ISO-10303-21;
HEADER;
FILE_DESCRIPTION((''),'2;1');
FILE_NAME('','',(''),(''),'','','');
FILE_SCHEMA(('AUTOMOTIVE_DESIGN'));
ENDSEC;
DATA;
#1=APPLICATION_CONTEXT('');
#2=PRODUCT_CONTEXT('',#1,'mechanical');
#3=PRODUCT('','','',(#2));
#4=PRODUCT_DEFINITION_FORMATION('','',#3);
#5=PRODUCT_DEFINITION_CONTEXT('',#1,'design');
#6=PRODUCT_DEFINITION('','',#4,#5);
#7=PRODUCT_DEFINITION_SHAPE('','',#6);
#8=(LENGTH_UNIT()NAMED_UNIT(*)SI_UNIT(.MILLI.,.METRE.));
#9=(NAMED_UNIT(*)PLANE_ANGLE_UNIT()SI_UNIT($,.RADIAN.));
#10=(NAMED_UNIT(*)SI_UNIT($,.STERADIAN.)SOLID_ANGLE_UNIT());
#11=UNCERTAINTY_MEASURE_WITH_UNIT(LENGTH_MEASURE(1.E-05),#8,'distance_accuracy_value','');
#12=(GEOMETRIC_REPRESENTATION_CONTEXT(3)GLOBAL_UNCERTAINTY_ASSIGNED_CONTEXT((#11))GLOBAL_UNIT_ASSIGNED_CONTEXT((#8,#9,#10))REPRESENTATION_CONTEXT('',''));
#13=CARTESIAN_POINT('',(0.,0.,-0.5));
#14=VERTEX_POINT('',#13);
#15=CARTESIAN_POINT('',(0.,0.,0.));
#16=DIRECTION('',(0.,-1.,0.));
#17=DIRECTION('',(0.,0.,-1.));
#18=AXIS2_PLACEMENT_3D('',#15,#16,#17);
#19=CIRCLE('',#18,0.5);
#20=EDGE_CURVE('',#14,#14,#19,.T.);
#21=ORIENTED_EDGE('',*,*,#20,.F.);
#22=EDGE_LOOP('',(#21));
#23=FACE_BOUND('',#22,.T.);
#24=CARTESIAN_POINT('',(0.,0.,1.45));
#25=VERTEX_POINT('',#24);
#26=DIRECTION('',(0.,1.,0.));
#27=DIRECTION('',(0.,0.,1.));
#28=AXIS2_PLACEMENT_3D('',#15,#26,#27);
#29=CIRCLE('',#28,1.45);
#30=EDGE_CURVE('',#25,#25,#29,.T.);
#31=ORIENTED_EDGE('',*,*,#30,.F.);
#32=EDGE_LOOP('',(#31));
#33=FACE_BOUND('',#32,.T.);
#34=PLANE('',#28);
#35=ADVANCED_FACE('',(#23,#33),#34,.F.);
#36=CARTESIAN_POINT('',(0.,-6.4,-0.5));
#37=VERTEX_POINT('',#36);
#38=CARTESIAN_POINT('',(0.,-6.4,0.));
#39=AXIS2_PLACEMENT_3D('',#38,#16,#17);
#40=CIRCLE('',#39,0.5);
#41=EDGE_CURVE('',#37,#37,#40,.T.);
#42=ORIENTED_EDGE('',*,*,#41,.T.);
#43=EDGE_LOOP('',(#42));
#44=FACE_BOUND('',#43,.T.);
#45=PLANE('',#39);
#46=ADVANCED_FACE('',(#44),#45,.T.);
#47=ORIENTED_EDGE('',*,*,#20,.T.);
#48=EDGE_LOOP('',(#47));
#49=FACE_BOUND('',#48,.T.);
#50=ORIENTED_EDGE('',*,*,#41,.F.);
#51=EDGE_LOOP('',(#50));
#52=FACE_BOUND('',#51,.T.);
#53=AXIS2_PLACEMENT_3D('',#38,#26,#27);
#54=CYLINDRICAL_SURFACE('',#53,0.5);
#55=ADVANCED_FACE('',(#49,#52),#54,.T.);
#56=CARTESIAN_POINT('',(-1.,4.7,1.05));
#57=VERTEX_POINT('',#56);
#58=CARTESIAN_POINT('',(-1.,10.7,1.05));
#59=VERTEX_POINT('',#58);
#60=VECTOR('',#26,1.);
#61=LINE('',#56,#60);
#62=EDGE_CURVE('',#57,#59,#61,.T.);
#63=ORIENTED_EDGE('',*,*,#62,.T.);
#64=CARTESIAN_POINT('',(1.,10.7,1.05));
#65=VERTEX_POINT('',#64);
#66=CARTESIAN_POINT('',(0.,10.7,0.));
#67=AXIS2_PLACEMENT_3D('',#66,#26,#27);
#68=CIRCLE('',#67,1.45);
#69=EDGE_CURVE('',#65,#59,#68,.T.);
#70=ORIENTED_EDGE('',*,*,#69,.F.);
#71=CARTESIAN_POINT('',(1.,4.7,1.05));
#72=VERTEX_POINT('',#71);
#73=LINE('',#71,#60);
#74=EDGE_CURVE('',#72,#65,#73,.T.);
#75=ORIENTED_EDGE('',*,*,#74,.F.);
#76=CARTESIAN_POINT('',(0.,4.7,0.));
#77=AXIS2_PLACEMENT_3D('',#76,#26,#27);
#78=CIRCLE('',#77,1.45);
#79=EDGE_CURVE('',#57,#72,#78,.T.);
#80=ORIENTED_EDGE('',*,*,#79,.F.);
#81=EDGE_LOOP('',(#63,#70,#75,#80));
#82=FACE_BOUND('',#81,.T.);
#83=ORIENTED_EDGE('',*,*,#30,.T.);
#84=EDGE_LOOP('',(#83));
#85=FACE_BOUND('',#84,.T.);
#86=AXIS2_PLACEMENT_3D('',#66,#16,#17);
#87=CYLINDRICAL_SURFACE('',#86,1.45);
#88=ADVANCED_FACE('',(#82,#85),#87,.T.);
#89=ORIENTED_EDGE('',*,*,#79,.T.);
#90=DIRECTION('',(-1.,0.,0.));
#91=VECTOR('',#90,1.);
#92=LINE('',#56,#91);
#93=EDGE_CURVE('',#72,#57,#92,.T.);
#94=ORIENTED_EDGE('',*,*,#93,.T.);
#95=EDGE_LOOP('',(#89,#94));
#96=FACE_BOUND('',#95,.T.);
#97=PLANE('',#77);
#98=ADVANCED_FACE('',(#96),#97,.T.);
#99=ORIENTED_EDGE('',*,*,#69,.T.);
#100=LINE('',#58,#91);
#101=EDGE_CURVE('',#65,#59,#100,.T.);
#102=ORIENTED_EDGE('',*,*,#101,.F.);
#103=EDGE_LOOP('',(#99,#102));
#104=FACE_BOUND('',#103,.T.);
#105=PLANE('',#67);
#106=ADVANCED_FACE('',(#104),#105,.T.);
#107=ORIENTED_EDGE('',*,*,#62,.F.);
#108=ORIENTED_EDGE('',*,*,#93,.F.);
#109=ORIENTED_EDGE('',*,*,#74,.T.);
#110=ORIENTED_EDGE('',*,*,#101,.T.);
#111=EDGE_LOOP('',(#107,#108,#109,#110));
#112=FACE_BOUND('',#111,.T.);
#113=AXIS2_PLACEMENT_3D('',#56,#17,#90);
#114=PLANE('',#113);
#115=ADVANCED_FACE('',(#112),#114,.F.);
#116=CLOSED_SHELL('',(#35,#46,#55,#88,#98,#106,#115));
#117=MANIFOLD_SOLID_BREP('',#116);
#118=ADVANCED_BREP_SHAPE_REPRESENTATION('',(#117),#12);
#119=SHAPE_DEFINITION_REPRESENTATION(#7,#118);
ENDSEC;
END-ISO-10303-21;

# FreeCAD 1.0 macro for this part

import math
import FreeCAD as App
import Part
import Sketcher

V = App.Vector
Q = App.Units.Quantity

doc = App.newDocument("Part")
body = doc.addObject("PartDesign::Body", "Body")

sketch1 = body.newObject("Sketcher::SketchObject", "Sketch")
sketch1.AttachmentSupport = (doc.getObject("XZ_Plane"), [""])
sketch1.MapMode = "FlatFace"
sketch1.addGeometry(Part.Circle(V(0, 0, 0), V(0, 0, 1), 1.4), False)
sketch1.addConstraint(Sketcher.Constraint("Coincident", 0, 3, -1, 1))
sketch1.addConstraint(Sketcher.Constraint("Diameter", 0, Q("2.9 mm")))
pad1 = body.newObject("PartDesign::Pad", "Pad")
pad1.Profile = sketch1
pad1.Length = 10.7
pad1.Reversed = True

sketch2 = body.newObject("Sketcher::SketchObject", "Sketch001")
sketch2.AttachmentSupport = (doc.getObject("XZ_Plane"), [""])
sketch2.MapMode = "FlatFace"
sketch2.AttachmentOffset = App.Placement(V(0, 0, -10.7), App.Rotation())
sketch2.addGeometry(Part.LineSegment(V(1, 1.1, 0), V(-1, 1.1, 0)), False)
sketch2.addGeometry(Part.ArcOfCircle(Part.Circle(V(0, 0, 0), V(0, 0, 1), 1.4), math.radians(46), math.radians(134)), False)
sketch2.addConstraint(Sketcher.Constraint("Coincident", 0, 1, 1, 1))
sketch2.addConstraint(Sketcher.Constraint("Coincident", 1, 2, 0, 2))
sketch2.addConstraint(Sketcher.Constraint("Horizontal", 0))
sketch2.addConstraint(Sketcher.Constraint("Coincident", 1, 3, -1, 1))
sketch2.addConstraint(Sketcher.Constraint("DistanceX", 0, 2, 0, 1, Q("2 mm")))
sketch2.addConstraint(Sketcher.Constraint("Radius", 1, Q("1.45 mm")))
pocket1 = body.newObject("PartDesign::Pocket", "Pocket")
pocket1.Profile = sketch2
pocket1.Length = 6
pocket1.Reversed = True

sketch3 = body.newObject("Sketcher::SketchObject", "Sketch002")
sketch3.AttachmentSupport = (doc.getObject("XZ_Plane"), [""])
sketch3.MapMode = "FlatFace"
sketch3.addGeometry(Part.Circle(V(0, 0, 0), V(0, 0, 1), 0.5), False)
sketch3.addConstraint(Sketcher.Constraint("Coincident", 0, 3, -1, 1))
sketch3.addConstraint(Sketcher.Constraint("Diameter", 0, Q("1 mm")))
pad2 = body.newObject("PartDesign::Pad", "Pad001")
pad2.Profile = sketch3
pad2.Length = 6.4

doc.recompute()
